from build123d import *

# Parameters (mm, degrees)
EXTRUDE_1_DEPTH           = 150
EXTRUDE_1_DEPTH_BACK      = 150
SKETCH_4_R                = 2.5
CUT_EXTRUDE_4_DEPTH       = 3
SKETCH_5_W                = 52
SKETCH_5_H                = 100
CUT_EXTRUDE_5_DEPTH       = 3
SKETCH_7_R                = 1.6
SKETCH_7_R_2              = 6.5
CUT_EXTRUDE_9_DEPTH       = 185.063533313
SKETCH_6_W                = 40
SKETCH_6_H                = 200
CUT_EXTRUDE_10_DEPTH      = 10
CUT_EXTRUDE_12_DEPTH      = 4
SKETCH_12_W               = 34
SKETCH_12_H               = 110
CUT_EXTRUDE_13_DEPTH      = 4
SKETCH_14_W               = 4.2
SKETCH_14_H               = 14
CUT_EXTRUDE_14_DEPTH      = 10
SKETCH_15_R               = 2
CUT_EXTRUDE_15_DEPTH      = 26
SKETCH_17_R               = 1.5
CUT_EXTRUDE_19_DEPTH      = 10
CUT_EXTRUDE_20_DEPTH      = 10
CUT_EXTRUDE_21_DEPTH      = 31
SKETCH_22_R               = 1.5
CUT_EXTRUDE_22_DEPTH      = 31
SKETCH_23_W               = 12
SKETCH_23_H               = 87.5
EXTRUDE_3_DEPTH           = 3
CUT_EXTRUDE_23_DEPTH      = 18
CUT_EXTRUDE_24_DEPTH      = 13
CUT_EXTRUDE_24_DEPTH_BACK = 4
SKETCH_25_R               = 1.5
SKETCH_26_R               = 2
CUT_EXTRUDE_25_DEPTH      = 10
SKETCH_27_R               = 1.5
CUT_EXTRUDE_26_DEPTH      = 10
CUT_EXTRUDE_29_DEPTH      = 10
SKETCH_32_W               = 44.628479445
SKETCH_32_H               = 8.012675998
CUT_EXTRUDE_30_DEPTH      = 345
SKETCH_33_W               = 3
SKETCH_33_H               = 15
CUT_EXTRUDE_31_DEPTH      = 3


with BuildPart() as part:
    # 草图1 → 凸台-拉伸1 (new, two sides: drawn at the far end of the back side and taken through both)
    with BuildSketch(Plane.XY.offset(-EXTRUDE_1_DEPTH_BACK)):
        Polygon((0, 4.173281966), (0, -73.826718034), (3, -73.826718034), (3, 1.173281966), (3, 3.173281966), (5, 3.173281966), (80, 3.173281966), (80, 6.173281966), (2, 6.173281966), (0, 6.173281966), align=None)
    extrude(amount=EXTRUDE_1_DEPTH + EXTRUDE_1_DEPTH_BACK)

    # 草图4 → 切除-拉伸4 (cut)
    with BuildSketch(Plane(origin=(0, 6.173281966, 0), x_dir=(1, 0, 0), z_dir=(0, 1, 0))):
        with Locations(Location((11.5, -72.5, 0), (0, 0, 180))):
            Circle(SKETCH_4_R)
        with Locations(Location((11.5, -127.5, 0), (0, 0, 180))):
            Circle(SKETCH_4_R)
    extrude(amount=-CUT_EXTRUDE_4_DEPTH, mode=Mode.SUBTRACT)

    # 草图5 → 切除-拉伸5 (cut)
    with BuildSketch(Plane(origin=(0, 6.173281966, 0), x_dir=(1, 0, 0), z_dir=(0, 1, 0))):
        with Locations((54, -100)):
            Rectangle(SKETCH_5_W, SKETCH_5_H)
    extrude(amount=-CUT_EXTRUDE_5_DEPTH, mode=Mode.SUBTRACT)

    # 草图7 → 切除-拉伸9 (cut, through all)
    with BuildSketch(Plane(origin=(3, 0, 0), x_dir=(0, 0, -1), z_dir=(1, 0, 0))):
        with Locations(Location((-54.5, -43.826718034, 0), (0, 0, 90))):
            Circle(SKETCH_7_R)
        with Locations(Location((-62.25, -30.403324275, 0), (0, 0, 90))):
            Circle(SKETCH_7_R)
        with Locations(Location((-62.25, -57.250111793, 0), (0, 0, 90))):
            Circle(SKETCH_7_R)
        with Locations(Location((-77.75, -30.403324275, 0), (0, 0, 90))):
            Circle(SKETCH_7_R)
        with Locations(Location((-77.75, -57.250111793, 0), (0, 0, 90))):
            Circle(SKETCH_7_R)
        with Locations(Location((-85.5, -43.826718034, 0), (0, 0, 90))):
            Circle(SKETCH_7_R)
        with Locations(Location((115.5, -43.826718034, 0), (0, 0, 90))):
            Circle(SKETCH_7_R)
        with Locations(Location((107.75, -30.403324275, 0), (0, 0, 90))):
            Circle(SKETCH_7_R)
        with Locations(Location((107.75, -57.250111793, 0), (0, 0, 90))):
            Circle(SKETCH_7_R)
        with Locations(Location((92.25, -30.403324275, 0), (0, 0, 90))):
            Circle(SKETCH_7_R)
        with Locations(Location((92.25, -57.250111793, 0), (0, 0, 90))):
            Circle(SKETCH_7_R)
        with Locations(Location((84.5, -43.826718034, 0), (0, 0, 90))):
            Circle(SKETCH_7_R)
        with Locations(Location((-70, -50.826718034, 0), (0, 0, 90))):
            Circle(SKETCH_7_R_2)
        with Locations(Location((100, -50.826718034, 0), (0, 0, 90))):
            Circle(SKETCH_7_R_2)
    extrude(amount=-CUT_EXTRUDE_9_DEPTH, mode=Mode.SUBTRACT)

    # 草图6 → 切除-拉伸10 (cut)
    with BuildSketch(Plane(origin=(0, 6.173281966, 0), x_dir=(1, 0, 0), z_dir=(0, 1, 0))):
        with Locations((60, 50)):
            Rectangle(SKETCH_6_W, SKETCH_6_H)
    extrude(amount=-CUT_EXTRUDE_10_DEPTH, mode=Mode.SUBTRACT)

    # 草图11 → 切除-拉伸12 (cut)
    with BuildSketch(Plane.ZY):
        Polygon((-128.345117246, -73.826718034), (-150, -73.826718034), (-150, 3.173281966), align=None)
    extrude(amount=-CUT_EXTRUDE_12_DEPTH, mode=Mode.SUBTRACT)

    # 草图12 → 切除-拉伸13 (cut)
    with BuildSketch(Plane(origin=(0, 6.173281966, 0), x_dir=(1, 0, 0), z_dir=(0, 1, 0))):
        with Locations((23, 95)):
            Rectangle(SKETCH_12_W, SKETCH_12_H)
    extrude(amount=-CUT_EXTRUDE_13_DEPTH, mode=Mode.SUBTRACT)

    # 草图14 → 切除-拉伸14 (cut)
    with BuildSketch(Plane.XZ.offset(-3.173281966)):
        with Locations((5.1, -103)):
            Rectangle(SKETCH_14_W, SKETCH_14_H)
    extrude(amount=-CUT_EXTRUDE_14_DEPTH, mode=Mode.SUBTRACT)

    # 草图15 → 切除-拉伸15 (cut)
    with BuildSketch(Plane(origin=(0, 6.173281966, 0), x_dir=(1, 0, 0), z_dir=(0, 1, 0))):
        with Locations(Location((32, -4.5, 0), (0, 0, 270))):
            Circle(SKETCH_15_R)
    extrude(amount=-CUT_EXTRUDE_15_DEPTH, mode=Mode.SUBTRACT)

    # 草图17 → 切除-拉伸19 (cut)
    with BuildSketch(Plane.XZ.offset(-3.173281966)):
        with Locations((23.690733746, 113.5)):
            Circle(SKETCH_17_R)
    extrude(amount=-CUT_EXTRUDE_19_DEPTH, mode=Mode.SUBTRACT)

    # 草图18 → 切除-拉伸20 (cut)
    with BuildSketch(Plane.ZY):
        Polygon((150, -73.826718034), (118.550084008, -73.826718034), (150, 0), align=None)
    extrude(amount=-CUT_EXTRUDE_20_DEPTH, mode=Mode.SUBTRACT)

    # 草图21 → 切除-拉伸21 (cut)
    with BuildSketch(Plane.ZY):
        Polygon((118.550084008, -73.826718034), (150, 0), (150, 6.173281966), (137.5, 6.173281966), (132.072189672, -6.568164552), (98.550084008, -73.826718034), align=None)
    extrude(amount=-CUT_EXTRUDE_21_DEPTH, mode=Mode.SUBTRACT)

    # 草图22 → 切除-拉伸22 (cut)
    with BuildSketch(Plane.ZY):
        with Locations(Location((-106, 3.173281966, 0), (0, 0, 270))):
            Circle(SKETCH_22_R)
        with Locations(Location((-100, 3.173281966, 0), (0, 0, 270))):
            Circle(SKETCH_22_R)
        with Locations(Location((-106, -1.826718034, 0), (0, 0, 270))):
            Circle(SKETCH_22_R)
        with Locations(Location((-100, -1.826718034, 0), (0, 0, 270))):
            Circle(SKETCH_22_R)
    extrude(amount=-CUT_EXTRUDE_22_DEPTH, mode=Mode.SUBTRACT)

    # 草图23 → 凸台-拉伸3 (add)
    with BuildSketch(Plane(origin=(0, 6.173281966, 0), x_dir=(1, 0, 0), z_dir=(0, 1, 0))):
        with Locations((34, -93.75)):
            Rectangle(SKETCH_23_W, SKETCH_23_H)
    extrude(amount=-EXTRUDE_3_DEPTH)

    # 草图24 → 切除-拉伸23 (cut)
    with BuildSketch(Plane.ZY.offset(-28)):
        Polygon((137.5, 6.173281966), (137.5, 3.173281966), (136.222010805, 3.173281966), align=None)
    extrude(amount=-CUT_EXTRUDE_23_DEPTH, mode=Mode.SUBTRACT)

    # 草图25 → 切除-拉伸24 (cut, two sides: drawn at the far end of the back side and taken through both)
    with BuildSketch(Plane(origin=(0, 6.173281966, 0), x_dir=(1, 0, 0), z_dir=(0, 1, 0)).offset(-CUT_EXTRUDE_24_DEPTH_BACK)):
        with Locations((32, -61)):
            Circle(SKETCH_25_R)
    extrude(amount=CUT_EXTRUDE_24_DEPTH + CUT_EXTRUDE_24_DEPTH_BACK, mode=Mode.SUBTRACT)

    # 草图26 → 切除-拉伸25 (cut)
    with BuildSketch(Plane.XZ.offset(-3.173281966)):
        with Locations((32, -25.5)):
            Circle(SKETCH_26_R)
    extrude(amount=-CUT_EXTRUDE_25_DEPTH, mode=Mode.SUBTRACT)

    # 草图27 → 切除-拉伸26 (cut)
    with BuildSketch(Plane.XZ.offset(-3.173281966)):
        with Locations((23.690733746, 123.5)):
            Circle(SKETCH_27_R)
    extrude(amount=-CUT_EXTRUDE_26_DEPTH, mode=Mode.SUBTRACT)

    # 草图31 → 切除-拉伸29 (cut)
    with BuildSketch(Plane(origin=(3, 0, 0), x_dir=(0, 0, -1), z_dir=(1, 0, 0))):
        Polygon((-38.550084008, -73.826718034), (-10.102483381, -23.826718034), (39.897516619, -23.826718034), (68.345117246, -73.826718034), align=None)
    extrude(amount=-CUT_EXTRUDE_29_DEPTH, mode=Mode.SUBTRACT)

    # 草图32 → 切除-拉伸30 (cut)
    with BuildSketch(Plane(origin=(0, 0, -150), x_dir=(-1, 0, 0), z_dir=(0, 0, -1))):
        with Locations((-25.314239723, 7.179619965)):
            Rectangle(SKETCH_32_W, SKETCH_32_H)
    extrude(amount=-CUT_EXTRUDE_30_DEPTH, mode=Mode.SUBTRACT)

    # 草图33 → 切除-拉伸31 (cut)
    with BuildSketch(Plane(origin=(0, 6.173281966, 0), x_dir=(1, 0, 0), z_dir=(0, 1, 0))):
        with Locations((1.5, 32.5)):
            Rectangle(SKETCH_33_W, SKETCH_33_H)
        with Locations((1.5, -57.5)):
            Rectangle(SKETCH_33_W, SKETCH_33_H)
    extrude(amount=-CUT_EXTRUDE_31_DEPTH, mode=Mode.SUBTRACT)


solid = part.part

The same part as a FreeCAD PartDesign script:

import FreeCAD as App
import Part
import Sketcher

V = App.Vector


def add_polygon(sketch, points):
    """Adds a closed chain of lines whose ends are joined by coincident constraints."""
    first, n = sketch.GeometryCount, len(points)
    for a, b in zip(points, points[1:] + points[:1]):
        sketch.addGeometry(Part.LineSegment(App.Vector(*a, 0), App.Vector(*b, 0)), False)
    for i in range(n):
        sketch.addConstraint(Sketcher.Constraint("Coincident", first + i, 2, first + (i + 1) % n, 1))

doc = App.newDocument("Part")
body = doc.addObject("PartDesign::Body", "Body")

# Sketch on XY plane
sketch1 = body.newObject("Sketcher::SketchObject", "Sketch")
sketch1.AttachmentSupport = (doc.getObject("XY_Plane"), [""])
sketch1.MapMode = "FlatFace"
add_polygon(sketch1, [(0, -73.8), (3, -73.8), (3, 3.2), (80, 3.2), (80, 6.2), (0, 6.2)])  # lines 0-5
sketch1.addConstraint(Sketcher.Constraint("Horizontal", 0))
sketch1.addConstraint(Sketcher.Constraint("Vertical", 1))
sketch1.addConstraint(Sketcher.Constraint("Horizontal", 2))
sketch1.addConstraint(Sketcher.Constraint("Vertical", 3))
sketch1.addConstraint(Sketcher.Constraint("Horizontal", 4))
sketch1.addConstraint(Sketcher.Constraint("Vertical", 5))
sketch1.addConstraint(Sketcher.Constraint("PointOnObject", 4, 2, -2))
sketch1.addConstraint(Sketcher.Constraint("Equal", 2, 1))
sketch1.addConstraint(Sketcher.Constraint("Equal", 0, 3))
sketch1.addConstraint(Sketcher.Constraint("DistanceX", 0, 1, 0, 2, 3.0))
sketch1.addConstraint(Sketcher.Constraint("DistanceX", 2, 1, 2, 2, 77.0))
sketch1.addConstraint(Sketcher.Constraint("DistanceY", 0, 2, -1, 1, 73.826718))
pad1 = body.newObject("PartDesign::Pad", "Pad")
pad1.Profile = sketch1
pad1.Type = "TwoLengths"
pad1.Length = 150
pad1.Length2 = 150

# Sketch on XZ plane
sketch2 = body.newObject("Sketcher::SketchObject", "Sketch001")
sketch2.AttachmentSupport = (doc.getObject("XZ_Plane"), [""])
sketch2.MapMode = "FlatFace"
sketch2.AttachmentOffset = App.Placement(V(0, 0, -6.173282), App.Rotation())
sketch2.addGeometry(Part.Circle(V(11.5, 72.5, 0), V(0, 0, 1), 2.5), False)
sketch2.addGeometry(Part.Circle(V(11.5, 127.5, 0), V(0, 0, 1), 2.5), False)
sketch2.addConstraint(Sketcher.Constraint("Equal", 0, 1))
sketch2.addConstraint(Sketcher.Constraint("Vertical", 0, 3, 1, 3))
sketch2.addConstraint(Sketcher.Constraint("Diameter", 0, 5.0))
sketch2.addConstraint(Sketcher.Constraint("DistanceY", 0, 3, 1, 3, 55.0))
sketch2.addConstraint(Sketcher.Constraint("DistanceX", -1, 1, 0, 3, 11.5))
sketch2.addConstraint(Sketcher.Constraint("DistanceY", -1, 1, 0, 3, 72.5))
pocket1 = body.newObject("PartDesign::Pocket", "Pocket")
pocket1.Profile = sketch2
pocket1.Length = 3
pocket1.Reversed = True

# Sketch on XZ plane
sketch3 = body.newObject("Sketcher::SketchObject", "Sketch002")
sketch3.AttachmentSupport = (doc.getObject("XZ_Plane"), [""])
sketch3.MapMode = "FlatFace"
sketch3.AttachmentOffset = App.Placement(V(0, 0, -6.173282), App.Rotation())
add_polygon(sketch3, [(28, 50), (28, 150), (80, 150), (80, 50)])  # lines 0-3
sketch3.addConstraint(Sketcher.Constraint("Vertical", 0))
sketch3.addConstraint(Sketcher.Constraint("Horizontal", 1))
sketch3.addConstraint(Sketcher.Constraint("Vertical", 2))
sketch3.addConstraint(Sketcher.Constraint("Horizontal", 3))
sketch3.addConstraint(Sketcher.Constraint("DistanceX", 1, 1, 1, 2, 52.0))
sketch3.addConstraint(Sketcher.Constraint("DistanceY", 0, 1, 0, 2, 100.0))
sketch3.addConstraint(Sketcher.Constraint("DistanceX", -1, 1, 0, 2, 28.0))
sketch3.addConstraint(Sketcher.Constraint("DistanceY", -1, 1, 0, 2, 150.0))
pocket2 = body.newObject("PartDesign::Pocket", "Pocket001")
pocket2.Profile = sketch3
pocket2.Length = 3
pocket2.Reversed = True

# Sketch on YZ plane
sketch4 = body.newObject("Sketcher::SketchObject", "Sketch003")
sketch4.AttachmentSupport = (doc.getObject("YZ_Plane"), [""])
sketch4.MapMode = "FlatFace"
sketch4.AttachmentOffset = App.Placement(V(0, 0, 3), App.Rotation())
sketch4.addGeometry(Part.Circle(V(-43.8, 54.5, 0), V(0, 0, 1), 1.6), False)
sketch4.addGeometry(Part.Circle(V(-30.4, 62.2, 0), V(0, 0, 1), 1.6), False)
sketch4.addGeometry(Part.Circle(V(-57.3, 62.2, 0), V(0, 0, 1), 1.6), False)
sketch4.addGeometry(Part.Circle(V(-30.4, 77.8, 0), V(0, 0, 1), 1.6), False)
sketch4.addGeometry(Part.Circle(V(-57.3, 77.8, 0), V(0, 0, 1), 1.6), False)
sketch4.addGeometry(Part.Circle(V(-43.8, 85.5, 0), V(0, 0, 1), 1.6), False)
sketch4.addGeometry(Part.Circle(V(-43.8, -115.5, 0), V(0, 0, 1), 1.6), False)
sketch4.addGeometry(Part.Circle(V(-30.4, -107.8, 0), V(0, 0, 1), 1.6), False)
sketch4.addGeometry(Part.Circle(V(-57.3, -107.8, 0), V(0, 0, 1), 1.6), False)
sketch4.addGeometry(Part.Circle(V(-30.4, -92.2, 0), V(0, 0, 1), 1.6), False)
sketch4.addGeometry(Part.Circle(V(-57.3, -92.2, 0), V(0, 0, 1), 1.6), False)
sketch4.addGeometry(Part.Circle(V(-43.8, -84.5, 0), V(0, 0, 1), 1.6), False)
sketch4.addGeometry(Part.Circle(V(-50.8, 70, 0), V(0, 0, 1), 6.5), False)
sketch4.addGeometry(Part.Circle(V(-50.8, -100, 0), V(0, 0, 1), 6.5), False)
sketch4.addConstraint(Sketcher.Constraint("Equal", 0, 1))
sketch4.addConstraint(Sketcher.Constraint("Equal", 1, 2))
sketch4.addConstraint(Sketcher.Constraint("Equal", 2, 3))
sketch4.addConstraint(Sketcher.Constraint("Equal", 3, 4))
sketch4.addConstraint(Sketcher.Constraint("Equal", 4, 5))
sketch4.addConstraint(Sketcher.Constraint("Equal", 5, 6))
sketch4.addConstraint(Sketcher.Constraint("Equal", 6, 7))
sketch4.addConstraint(Sketcher.Constraint("Equal", 7, 8))
sketch4.addConstraint(Sketcher.Constraint("Equal", 8, 9))
sketch4.addConstraint(Sketcher.Constraint("Equal", 9, 10))
sketch4.addConstraint(Sketcher.Constraint("Equal", 10, 11))
sketch4.addConstraint(Sketcher.Constraint("Equal", 12, 13))
sketch4.addConstraint(Sketcher.Constraint("Horizontal", 1, 3, 2, 3))
sketch4.addConstraint(Sketcher.Constraint("Horizontal", 3, 3, 4, 3))
sketch4.addConstraint(Sketcher.Constraint("Horizontal", 7, 3, 8, 3))
sketch4.addConstraint(Sketcher.Constraint("Horizontal", 9, 3, 10, 3))
sketch4.addConstraint(Sketcher.Constraint("Vertical", 1, 3, 3, 3))
sketch4.addConstraint(Sketcher.Constraint("Vertical", 2, 3, 4, 3))
sketch4.addConstraint(Sketcher.Constraint("Vertical", 0, 3, 5, 3))
sketch4.addConstraint(Sketcher.Constraint("Vertical", 5, 3, 6, 3))
sketch4.addConstraint(Sketcher.Constraint("Vertical", 3, 3, 7, 3))
sketch4.addConstraint(Sketcher.Constraint("Vertical", 4, 3, 8, 3))
sketch4.addConstraint(Sketcher.Constraint("Vertical", 7, 3, 9, 3))
sketch4.addConstraint(Sketcher.Constraint("Vertical", 8, 3, 10, 3))
sketch4.addConstraint(Sketcher.Constraint("Vertical", 6, 3, 11, 3))
sketch4.addConstraint(Sketcher.Constraint("Vertical", 12, 3, 13, 3))
sketch4.addConstraint(Sketcher.Constraint("Diameter", 12, 13.0))
sketch4.addConstraint(Sketcher.Constraint("Diameter", 0, 3.2))
sketch4.addConstraint(Sketcher.Constraint("DistanceY", -1, 1, 12, 3, 70.0))
sketch4.addConstraint(Sketcher.Constraint("DistanceY", 13, 3, -1, 1, 100.0))
sketch4.addConstraint(Sketcher.Constraint("DistanceY", 0, 3, 5, 3, 31.0))
sketch4.addConstraint(Sketcher.Constraint("DistanceY", 6, 3, 0, 3, 170.0))
sketch4.addConstraint(Sketcher.Constraint("DistanceY", 7, 3, 1, 3, 170.0))
sketch4.addConstraint(Sketcher.Constraint("DistanceY", 6, 3, 11, 3, 31.0))
sketch4.addConstraint(Sketcher.Constraint("DistanceX", 12, 3, 0, 3, 7.0))
sketch4.addConstraint(Sketcher.Constraint("DistanceY", -1, 1, 0, 3, 54.5))
sketch4.addConstraint(Sketcher.Constraint("DistanceY", 1, 3, 3, 3, 15.5))
sketch4.addConstraint(Sketcher.Constraint("DistanceY", 7, 3, 9, 3, 15.5))
sketch4.addConstraint(Sketcher.Constraint("DistanceY", -1, 1, 1, 3, 62.25))
sketch4.addConstraint(Sketcher.Constraint("DistanceX", 0, 3, -1, 1, 43.826718))
sketch4.addConstraint(Sketcher.Constraint("DistanceX", 2, 3, -1, 1, 57.250112))
sketch4.addConstraint(Sketcher.Constraint("DistanceX", 1, 3, -1, 1, 30.403324))
pocket3 = body.newObject("PartDesign::Pocket", "Pocket002")
pocket3.Profile = sketch4
pocket3.Type = "ThroughAll"

# Sketch on XZ plane
sketch5 = body.newObject("Sketcher::SketchObject", "Sketch004")
sketch5.AttachmentSupport = (doc.getObject("XZ_Plane"), [""])
sketch5.MapMode = "FlatFace"
sketch5.AttachmentOffset = App.Placement(V(0, 0, -6.173282), App.Rotation())
add_polygon(sketch5, [(40, -150), (40, 50), (80, 50), (80, -150)])  # lines 0-3
sketch5.addConstraint(Sketcher.Constraint("Vertical", 0))
sketch5.addConstraint(Sketcher.Constraint("Horizontal", 1))
sketch5.addConstraint(Sketcher.Constraint("Vertical", 2))
sketch5.addConstraint(Sketcher.Constraint("Horizontal", 3))
sketch5.addConstraint(Sketcher.Constraint("DistanceX", 1, 1, 1, 2, 40.0))
sketch5.addConstraint(Sketcher.Constraint("DistanceY", 0, 1, 0, 2, 200.0))
sketch5.addConstraint(Sketcher.Constraint("DistanceX", -1, 1, 0, 2, 40.0))
sketch5.addConstraint(Sketcher.Constraint("DistanceY", -1, 1, 0, 2, 50.0))
pocket4 = body.newObject("PartDesign::Pocket", "Pocket003")
pocket4.Profile = sketch5
pocket4.Length = 10
pocket4.Reversed = True

# Sketch on YZ plane
sketch6 = body.newObject("Sketcher::SketchObject", "Sketch005")
sketch6.AttachmentSupport = (doc.getObject("YZ_Plane"), [""])
sketch6.MapMode = "FlatFace"
add_polygon(sketch6, [(-74, -150), (-74, -128), (3, -150)])  # lines 0-2
sketch6.addConstraint(Sketcher.Constraint("Vertical", 0))
sketch6.addConstraint(Sketcher.Constraint("Horizontal", 2))
sketch6.addConstraint(Sketcher.Constraint("DistanceX", 2, 2, 2, 1, 77.0))
sketch6.addConstraint(Sketcher.Constraint("DistanceY", 1, 2, -1, 1, 150.0))
sketch6.addConstraint(Sketcher.Constraint("DistanceY", 0, 1, 0, 2, 21.654883))
sketch6.addConstraint(Sketcher.Constraint("DistanceX", 0, 2, -1, 1, 73.826718))
pocket5 = body.newObject("PartDesign::Pocket", "Pocket004")
pocket5.Profile = sketch6
pocket5.Length = 4
pocket5.Reversed = True

# Sketch on XZ plane
sketch7 = body.newObject("Sketcher::SketchObject", "Sketch006")
sketch7.AttachmentSupport = (doc.getObject("XZ_Plane"), [""])
sketch7.MapMode = "FlatFace"
sketch7.AttachmentOffset = App.Placement(V(0, 0, -6.173282), App.Rotation())
add_polygon(sketch7, [(6, -150), (6, -40), (40, -40), (40, -150)])  # lines 0-3
sketch7.addConstraint(Sketcher.Constraint("Vertical", 0))
sketch7.addConstraint(Sketcher.Constraint("Horizontal", 1))
sketch7.addConstraint(Sketcher.Constraint("Vertical", 2))
sketch7.addConstraint(Sketcher.Constraint("Horizontal", 3))
sketch7.addConstraint(Sketcher.Constraint("DistanceX", 1, 1, 1, 2, 34.0))
sketch7.addConstraint(Sketcher.Constraint("DistanceY", 0, 1, 0, 2, 110.0))
sketch7.addConstraint(Sketcher.Constraint("DistanceX", -1, 1, 0, 2, 6.0))
sketch7.addConstraint(Sketcher.Constraint("DistanceY", 0, 2, -1, 1, 40.0))
pocket6 = body.newObject("PartDesign::Pocket", "Pocket005")
pocket6.Profile = sketch7
pocket6.Length = 4
pocket6.Reversed = True

# Sketch on XZ plane
sketch8 = body.newObject("Sketcher::SketchObject", "Sketch007")
sketch8.AttachmentSupport = (doc.getObject("XZ_Plane"), [""])
sketch8.MapMode = "FlatFace"
sketch8.AttachmentOffset = App.Placement(V(0, 0, -3.173282), App.Rotation())
add_polygon(sketch8, [(3, -96), (3, -110), (7.2, -110), (7.2, -96)])  # lines 0-3
sketch8.addConstraint(Sketcher.Constraint("Vertical", 0))
sketch8.addConstraint(Sketcher.Constraint("Horizontal", 1))
sketch8.addConstraint(Sketcher.Constraint("Vertical", 2))
sketch8.addConstraint(Sketcher.Constraint("Horizontal", 3))
sketch8.addConstraint(Sketcher.Constraint("DistanceY", 0, 2, 0, 1, 14.0))
sketch8.addConstraint(Sketcher.Constraint("DistanceX", 1, 1, 1, 2, 4.2))
sketch8.addConstraint(Sketcher.Constraint("DistanceX", -1, 1, 0, 2, 3.0))
sketch8.addConstraint(Sketcher.Constraint("DistanceY", 0, 2, -1, 1, 110.0))
pocket7 = body.newObject("PartDesign::Pocket", "Pocket006")
pocket7.Profile = sketch8
pocket7.Length = 10

# Sketch on XZ plane
sketch9 = body.newObject("Sketcher::SketchObject", "Sketch008")
sketch9.AttachmentSupport = (doc.getObject("XZ_Plane"), [""])
sketch9.MapMode = "FlatFace"
sketch9.AttachmentOffset = App.Placement(V(0, 0, -6.173282), App.Rotation())
sketch9.addGeometry(Part.Circle(V(32, 4.5, 0), V(0, 0, 1), 2), False)
sketch9.addConstraint(Sketcher.Constraint("Diameter", 0, 4.0))
sketch9.addConstraint(Sketcher.Constraint("DistanceX", -1, 1, 0, 3, 32.0))
sketch9.addConstraint(Sketcher.Constraint("DistanceY", -1, 1, 0, 3, 4.5))
pocket8 = body.newObject("PartDesign::Pocket", "Pocket007")
pocket8.Profile = sketch9
pocket8.Length = 26
pocket8.Reversed = True

# Sketch on XZ plane
sketch10 = body.newObject("Sketcher::SketchObject", "Sketch009")
sketch10.AttachmentSupport = (doc.getObject("XZ_Plane"), [""])
sketch10.MapMode = "FlatFace"
sketch10.AttachmentOffset = App.Placement(V(0, 0, -3.173282), App.Rotation())
sketch10.addGeometry(Part.Circle(V(23.7, 113.5, 0), V(0, 0, 1), 1.5), False)
sketch10.addConstraint(Sketcher.Constraint("Diameter", 0, 3.0))
sketch10.addConstraint(Sketcher.Constraint("DistanceY", -1, 1, 0, 3, 113.5))
sketch10.addConstraint(Sketcher.Constraint("DistanceX", -1, 1, 0, 3, 23.690734))
pocket9 = body.newObject("PartDesign::Pocket", "Pocket008")
pocket9.Profile = sketch10
pocket9.Length = 10

# Sketch on YZ plane
sketch11 = body.newObject("Sketcher::SketchObject", "Sketch010")
sketch11.AttachmentSupport = (doc.getObject("YZ_Plane"), [""])
sketch11.MapMode = "FlatFace"
add_polygon(sketch11, [(-74, 119), (-74, 150), (0, 150)])  # lines 0-2
sketch11.addConstraint(Sketcher.Constraint("Vertical", 0))
sketch11.addConstraint(Sketcher.Constraint("Horizontal", 1))
sketch11.addConstraint(Sketcher.Constraint("PointOnObject", 1, 2, -2))
sketch11.addConstraint(Sketcher.Constraint("DistanceY", -1, 1, 0, 2, 150.0))
sketch11.addConstraint(Sketcher.Constraint("DistanceX", 1, 1, 1, 2, 73.826718))
sketch11.addConstraint(Sketcher.Constraint("Distance", 2, 80.24638))
pocket10 = body.newObject("PartDesign::Pocket", "Pocket009")
pocket10.Profile = sketch11
pocket10.Length = 10
pocket10.Reversed = True

# Sketch on YZ plane
sketch12 = body.newObject("Sketcher::SketchObject", "Sketch011")
sketch12.AttachmentSupport = (doc.getObject("YZ_Plane"), [""])
sketch12.MapMode = "FlatFace"
add_polygon(sketch12, [(-74, 119), (0, 150), (6, 150), (6, 138), (-7, 132), (-74, 99)])  # lines 0-5
sketch12.addConstraint(Sketcher.Constraint("Horizontal", 1))
sketch12.addConstraint(Sketcher.Constraint("Vertical", 2))
sketch12.addConstraint(Sketcher.Constraint("Vertical", 5))
sketch12.addConstraint(Sketcher.Constraint("PointOnObject", 0, 2, -2))
sketch12.addConstraint(Sketcher.Constraint("Parallel", 0, 3))
sketch12.addConstraint(Sketcher.Constraint("DistanceY", 5, 1, 5, 2, 20.0))
sketch12.addConstraint(Sketcher.Constraint("DistanceY", 2, 2, 2, 1, 12.5))
sketch12.addConstraint(Sketcher.Constraint("DistanceY", -1, 1, 0, 2, 150.0))
sketch12.addConstraint(Sketcher.Constraint("DistanceX", 4, 2, 2, 2, 80.0))
sketch12.addConstraint(Sketcher.Constraint("DistanceX", 1, 1, 1, 2, 6.173282))
sketch12.addConstraint(Sketcher.Constraint("Distance", 0, 80.24638))
sketch12.addConstraint(Sketcher.Constraint("Distance", 3, 13.849389))
pocket11 = body.newObject("PartDesign::Pocket", "Pocket010")
pocket11.Profile = sketch12
pocket11.Length = 31
pocket11.Reversed = True

# Sketch on YZ plane
sketch13 = body.newObject("Sketcher::SketchObject", "Sketch012")
sketch13.AttachmentSupport = (doc.getObject("YZ_Plane"), [""])
sketch13.MapMode = "FlatFace"
sketch13.addGeometry(Part.Circle(V(3.2, -106, 0), V(0, 0, 1), 1.5), False)
sketch13.addGeometry(Part.Circle(V(3.2, -100, 0), V(0, 0, 1), 1.5), False)
sketch13.addGeometry(Part.Circle(V(-1.8, -106, 0), V(0, 0, 1), 1.5), False)
sketch13.addGeometry(Part.Circle(V(-1.8, -100, 0), V(0, 0, 1), 1.5), False)
sketch13.addConstraint(Sketcher.Constraint("Equal", 0, 1))
sketch13.addConstraint(Sketcher.Constraint("Equal", 1, 2))
sketch13.addConstraint(Sketcher.Constraint("Equal", 2, 3))
sketch13.addConstraint(Sketcher.Constraint("Horizontal", 0, 3, 2, 3))
sketch13.addConstraint(Sketcher.Constraint("Horizontal", 1, 3, 3, 3))
sketch13.addConstraint(Sketcher.Constraint("Vertical", 0, 3, 1, 3))
sketch13.addConstraint(Sketcher.Constraint("Vertical", 2, 3, 3, 3))
sketch13.addConstraint(Sketcher.Constraint("Diameter", 0, 3.0))
sketch13.addConstraint(Sketcher.Constraint("DistanceY", 0, 3, -1, 1, 106.0))
sketch13.addConstraint(Sketcher.Constraint("DistanceY", 1, 3, -1, 1, 100.0))
sketch13.addConstraint(Sketcher.Constraint("DistanceX", 2, 3, 0, 3, 5.0))
sketch13.addConstraint(Sketcher.Constraint("DistanceX", -1, 1, 0, 3, 3.173282))
pocket12 = body.newObject("PartDesign::Pocket", "Pocket011")
pocket12.Profile = sketch13
pocket12.Length = 31
pocket12.Reversed = True

# Sketch on XZ plane
sketch14 = body.newObject("Sketcher::SketchObject", "Sketch013")
sketch14.AttachmentSupport = (doc.getObject("XZ_Plane"), [""])
sketch14.MapMode = "FlatFace"
sketch14.AttachmentOffset = App.Placement(V(0, 0, -6.173282), App.Rotation())
add_polygon(sketch14, [(28, 50), (28, 138), (40, 138), (40, 50)])  # lines 0-3
sketch14.addConstraint(Sketcher.Constraint("Vertical", 0))
sketch14.addConstraint(Sketcher.Constraint("Horizontal", 1))
sketch14.addConstraint(Sketcher.Constraint("Vertical", 2))
sketch14.addConstraint(Sketcher.Constraint("Horizontal", 3))
sketch14.addConstraint(Sketcher.Constraint("DistanceX", 1, 1, 1, 2, 12.0))
sketch14.addConstraint(Sketcher.Constraint("DistanceY", 0, 1, 0, 2, 87.5))
sketch14.addConstraint(Sketcher.Constraint("DistanceX", -1, 1, 0, 2, 28.0))
sketch14.addConstraint(Sketcher.Constraint("DistanceY", -1, 1, 2, 2, 50.0))
pad2 = body.newObject("PartDesign::Pad", "Pad001")
pad2.Profile = sketch14
pad2.Length = 3

# Sketch on YZ plane
sketch15 = body.newObject("Sketcher::SketchObject", "Sketch014")
sketch15.AttachmentSupport = (doc.getObject("YZ_Plane"), [""])
sketch15.MapMode = "FlatFace"
sketch15.AttachmentOffset = App.Placement(V(0, 0, 28), App.Rotation())
add_polygon(sketch15, [(3.2, 137.5), (6.2, 137.5), (3.2, 136.2)])  # lines 0-2
sketch15.addConstraint(Sketcher.Constraint("Horizontal", 0))
sketch15.addConstraint(Sketcher.Constraint("Vertical", 2))
sketch15.addConstraint(Sketcher.Constraint("DistanceX", 0, 1, 0, 2, 3.0))
sketch15.addConstraint(Sketcher.Constraint("DistanceY", -1, 1, 0, 2, 137.5))
sketch15.addConstraint(Sketcher.Constraint("DistanceY", 2, 1, 2, 2, 1.277989))
sketch15.addConstraint(Sketcher.Constraint("DistanceX", -1, 1, 0, 2, 6.173282))
pocket13 = body.newObject("PartDesign::Pocket", "Pocket012")
pocket13.Profile = sketch15
pocket13.Length = 18
pocket13.Reversed = True

# Sketch on XZ plane
sketch16 = body.newObject("Sketcher::SketchObject", "Sketch015")
sketch16.AttachmentSupport = (doc.getObject("XZ_Plane"), [""])
sketch16.MapMode = "FlatFace"
sketch16.AttachmentOffset = App.Placement(V(0, 0, -6.173282), App.Rotation())
sketch16.addGeometry(Part.Circle(V(32, 61, 0), V(0, 0, 1), 1.5), False)
sketch16.addConstraint(Sketcher.Constraint("Diameter", 0, 3.0))
sketch16.addConstraint(Sketcher.Constraint("DistanceX", -1, 1, 0, 3, 32.0))
sketch16.addConstraint(Sketcher.Constraint("DistanceY", -1, 1, 0, 3, 61.0))
pocket14 = body.newObject("PartDesign::Pocket", "Pocket013")
pocket14.Profile = sketch16
pocket14.Type = "ThroughAll"
pocket14.Midplane = True

# Sketch on XZ plane
sketch17 = body.newObject("Sketcher::SketchObject", "Sketch016")
sketch17.AttachmentSupport = (doc.getObject("XZ_Plane"), [""])
sketch17.MapMode = "FlatFace"
sketch17.AttachmentOffset = App.Placement(V(0, 0, -3.173282), App.Rotation())
sketch17.addGeometry(Part.Circle(V(32, -25.5, 0), V(0, 0, 1), 2), False)
sketch17.addConstraint(Sketcher.Constraint("Diameter", 0, 4.0))
sketch17.addConstraint(Sketcher.Constraint("DistanceX", -1, 1, 0, 3, 32.0))
sketch17.addConstraint(Sketcher.Constraint("DistanceY", 0, 3, -1, 1, 25.5))
pocket15 = body.newObject("PartDesign::Pocket", "Pocket014")
pocket15.Profile = sketch17
pocket15.Length = 10

# Sketch on XZ plane
sketch18 = body.newObject("Sketcher::SketchObject", "Sketch017")
sketch18.AttachmentSupport = (doc.getObject("XZ_Plane"), [""])
sketch18.MapMode = "FlatFace"
sketch18.AttachmentOffset = App.Placement(V(0, 0, -3.173282), App.Rotation())
sketch18.addGeometry(Part.Circle(V(23.7, 123.5, 0), V(0, 0, 1), 1.5), False)
sketch18.addConstraint(Sketcher.Constraint("Diameter", 0, 3.0))
sketch18.addConstraint(Sketcher.Constraint("DistanceY", -1, 1, 0, 3, 123.5))
sketch18.addConstraint(Sketcher.Constraint("DistanceX", -1, 1, 0, 3, 23.690734))
pocket16 = body.newObject("PartDesign::Pocket", "Pocket015")
pocket16.Profile = sketch18
pocket16.Length = 10

# Sketch on YZ plane
sketch19 = body.newObject("Sketcher::SketchObject", "Sketch018")
sketch19.AttachmentSupport = (doc.getObject("YZ_Plane"), [""])
sketch19.MapMode = "FlatFace"
sketch19.AttachmentOffset = App.Placement(V(0, 0, 3), App.Rotation())
add_polygon(sketch19, [(-24, 10), (-74, 39), (-74, -68), (-24, -40)])  # lines 0-3
sketch19.addConstraint(Sketcher.Constraint("Vertical", 1))
sketch19.addConstraint(Sketcher.Constraint("Vertical", 3))
sketch19.addConstraint(Sketcher.Constraint("Equal", 0, 2))
sketch19.addConstraint(Sketcher.Constraint("DistanceY", 3, 1, 3, 2, 50.0))
sketch19.addConstraint(Sketcher.Constraint("DistanceX", 1, 2, 2, 2, 50.0))
sketch19.addConstraint(Sketcher.Constraint("DistanceY", 1, 2, 1, 1, 106.895201))
sketch19.addConstraint(Sketcher.Constraint("DistanceX", 0, 2, -1, 1, 73.826718))
sketch19.addConstraint(Sketcher.Constraint("DistanceY", -1, 1, 0, 2, 38.550084))
pocket17 = body.newObject("PartDesign::Pocket", "Pocket016")
pocket17.Profile = sketch19
pocket17.Length = 10

# Sketch on XY plane
sketch20 = body.newObject("Sketcher::SketchObject", "Sketch019")
sketch20.AttachmentSupport = (doc.getObject("XY_Plane"), [""])
sketch20.MapMode = "FlatFace"
sketch20.AttachmentOffset = App.Placement(V(0, 0, -150), App.Rotation())
add_polygon(sketch20, [(48, 11), (48, 3), (3, 3), (3, 11)])  # lines 0-3
sketch20.addConstraint(Sketcher.Constraint("Vertical", 0))
sketch20.addConstraint(Sketcher.Constraint("Horizontal", 1))
sketch20.addConstraint(Sketcher.Constraint("Vertical", 2))
sketch20.addConstraint(Sketcher.Constraint("Horizontal", 3))
sketch20.addConstraint(Sketcher.Constraint("DistanceX", -1, 1, 1, 2, 3.0))
sketch20.addConstraint(Sketcher.Constraint("DistanceX", 1, 2, 1, 1, 44.628479))
sketch20.addConstraint(Sketcher.Constraint("DistanceY", 0, 2, 0, 1, 8.012676))
sketch20.addConstraint(Sketcher.Constraint("DistanceY", -1, 1, 0, 2, 3.173282))
pocket18 = body.newObject("PartDesign::Pocket", "Pocket017")
pocket18.Profile = sketch20
pocket18.Length = 345
pocket18.Reversed = True

# Sketch on XZ plane
sketch21 = body.newObject("Sketcher::SketchObject", "Sketch020")
sketch21.AttachmentSupport = (doc.getObject("XZ_Plane"), [""])
sketch21.MapMode = "FlatFace"
sketch21.AttachmentOffset = App.Placement(V(0, 0, -6.173282), App.Rotation())
add_polygon(sketch21, [(0, -40), (0, -25), (3, -25), (3, -40)])  # lines 0-3
add_polygon(sketch21, [(0, 50), (0, 65), (3, 65), (3, 50)])  # lines 4-7
sketch21.addConstraint(Sketcher.Constraint("Vertical", 0))
sketch21.addConstraint(Sketcher.Constraint("Horizontal", 1))
sketch21.addConstraint(Sketcher.Constraint("Vertical", 2))
sketch21.addConstraint(Sketcher.Constraint("Horizontal", 3))
sketch21.addConstraint(Sketcher.Constraint("Vertical", 4))
sketch21.addConstraint(Sketcher.Constraint("Horizontal", 5))
sketch21.addConstraint(Sketcher.Constraint("Vertical", 6))
sketch21.addConstraint(Sketcher.Constraint("Horizontal", 7))
sketch21.addConstraint(Sketcher.Constraint("PointOnObject", 0, 2, -2))
sketch21.addConstraint(Sketcher.Constraint("PointOnObject", 4, 2, -2))
sketch21.addConstraint(Sketcher.Constraint("Vertical", 2, 2, 5, 2))
sketch21.addConstraint(Sketcher.Constraint("Equal", 2, 4))
sketch21.addConstraint(Sketcher.Constraint("DistanceX", 1, 1, 1, 2, 3.0))
sketch21.addConstraint(Sketcher.Constraint("DistanceY", 0, 1, 0, 2, 15.0))
sketch21.addConstraint(Sketcher.Constraint("DistanceY", 0, 2, -1, 1, 25.0))
sketch21.addConstraint(Sketcher.Constraint("DistanceY", -1, 1, 4, 2, 65.0))
pocket19 = body.newObject("PartDesign::Pocket", "Pocket018")
pocket19.Profile = sketch21
pocket19.Length = 3
pocket19.Reversed = True

doc.recompute()
